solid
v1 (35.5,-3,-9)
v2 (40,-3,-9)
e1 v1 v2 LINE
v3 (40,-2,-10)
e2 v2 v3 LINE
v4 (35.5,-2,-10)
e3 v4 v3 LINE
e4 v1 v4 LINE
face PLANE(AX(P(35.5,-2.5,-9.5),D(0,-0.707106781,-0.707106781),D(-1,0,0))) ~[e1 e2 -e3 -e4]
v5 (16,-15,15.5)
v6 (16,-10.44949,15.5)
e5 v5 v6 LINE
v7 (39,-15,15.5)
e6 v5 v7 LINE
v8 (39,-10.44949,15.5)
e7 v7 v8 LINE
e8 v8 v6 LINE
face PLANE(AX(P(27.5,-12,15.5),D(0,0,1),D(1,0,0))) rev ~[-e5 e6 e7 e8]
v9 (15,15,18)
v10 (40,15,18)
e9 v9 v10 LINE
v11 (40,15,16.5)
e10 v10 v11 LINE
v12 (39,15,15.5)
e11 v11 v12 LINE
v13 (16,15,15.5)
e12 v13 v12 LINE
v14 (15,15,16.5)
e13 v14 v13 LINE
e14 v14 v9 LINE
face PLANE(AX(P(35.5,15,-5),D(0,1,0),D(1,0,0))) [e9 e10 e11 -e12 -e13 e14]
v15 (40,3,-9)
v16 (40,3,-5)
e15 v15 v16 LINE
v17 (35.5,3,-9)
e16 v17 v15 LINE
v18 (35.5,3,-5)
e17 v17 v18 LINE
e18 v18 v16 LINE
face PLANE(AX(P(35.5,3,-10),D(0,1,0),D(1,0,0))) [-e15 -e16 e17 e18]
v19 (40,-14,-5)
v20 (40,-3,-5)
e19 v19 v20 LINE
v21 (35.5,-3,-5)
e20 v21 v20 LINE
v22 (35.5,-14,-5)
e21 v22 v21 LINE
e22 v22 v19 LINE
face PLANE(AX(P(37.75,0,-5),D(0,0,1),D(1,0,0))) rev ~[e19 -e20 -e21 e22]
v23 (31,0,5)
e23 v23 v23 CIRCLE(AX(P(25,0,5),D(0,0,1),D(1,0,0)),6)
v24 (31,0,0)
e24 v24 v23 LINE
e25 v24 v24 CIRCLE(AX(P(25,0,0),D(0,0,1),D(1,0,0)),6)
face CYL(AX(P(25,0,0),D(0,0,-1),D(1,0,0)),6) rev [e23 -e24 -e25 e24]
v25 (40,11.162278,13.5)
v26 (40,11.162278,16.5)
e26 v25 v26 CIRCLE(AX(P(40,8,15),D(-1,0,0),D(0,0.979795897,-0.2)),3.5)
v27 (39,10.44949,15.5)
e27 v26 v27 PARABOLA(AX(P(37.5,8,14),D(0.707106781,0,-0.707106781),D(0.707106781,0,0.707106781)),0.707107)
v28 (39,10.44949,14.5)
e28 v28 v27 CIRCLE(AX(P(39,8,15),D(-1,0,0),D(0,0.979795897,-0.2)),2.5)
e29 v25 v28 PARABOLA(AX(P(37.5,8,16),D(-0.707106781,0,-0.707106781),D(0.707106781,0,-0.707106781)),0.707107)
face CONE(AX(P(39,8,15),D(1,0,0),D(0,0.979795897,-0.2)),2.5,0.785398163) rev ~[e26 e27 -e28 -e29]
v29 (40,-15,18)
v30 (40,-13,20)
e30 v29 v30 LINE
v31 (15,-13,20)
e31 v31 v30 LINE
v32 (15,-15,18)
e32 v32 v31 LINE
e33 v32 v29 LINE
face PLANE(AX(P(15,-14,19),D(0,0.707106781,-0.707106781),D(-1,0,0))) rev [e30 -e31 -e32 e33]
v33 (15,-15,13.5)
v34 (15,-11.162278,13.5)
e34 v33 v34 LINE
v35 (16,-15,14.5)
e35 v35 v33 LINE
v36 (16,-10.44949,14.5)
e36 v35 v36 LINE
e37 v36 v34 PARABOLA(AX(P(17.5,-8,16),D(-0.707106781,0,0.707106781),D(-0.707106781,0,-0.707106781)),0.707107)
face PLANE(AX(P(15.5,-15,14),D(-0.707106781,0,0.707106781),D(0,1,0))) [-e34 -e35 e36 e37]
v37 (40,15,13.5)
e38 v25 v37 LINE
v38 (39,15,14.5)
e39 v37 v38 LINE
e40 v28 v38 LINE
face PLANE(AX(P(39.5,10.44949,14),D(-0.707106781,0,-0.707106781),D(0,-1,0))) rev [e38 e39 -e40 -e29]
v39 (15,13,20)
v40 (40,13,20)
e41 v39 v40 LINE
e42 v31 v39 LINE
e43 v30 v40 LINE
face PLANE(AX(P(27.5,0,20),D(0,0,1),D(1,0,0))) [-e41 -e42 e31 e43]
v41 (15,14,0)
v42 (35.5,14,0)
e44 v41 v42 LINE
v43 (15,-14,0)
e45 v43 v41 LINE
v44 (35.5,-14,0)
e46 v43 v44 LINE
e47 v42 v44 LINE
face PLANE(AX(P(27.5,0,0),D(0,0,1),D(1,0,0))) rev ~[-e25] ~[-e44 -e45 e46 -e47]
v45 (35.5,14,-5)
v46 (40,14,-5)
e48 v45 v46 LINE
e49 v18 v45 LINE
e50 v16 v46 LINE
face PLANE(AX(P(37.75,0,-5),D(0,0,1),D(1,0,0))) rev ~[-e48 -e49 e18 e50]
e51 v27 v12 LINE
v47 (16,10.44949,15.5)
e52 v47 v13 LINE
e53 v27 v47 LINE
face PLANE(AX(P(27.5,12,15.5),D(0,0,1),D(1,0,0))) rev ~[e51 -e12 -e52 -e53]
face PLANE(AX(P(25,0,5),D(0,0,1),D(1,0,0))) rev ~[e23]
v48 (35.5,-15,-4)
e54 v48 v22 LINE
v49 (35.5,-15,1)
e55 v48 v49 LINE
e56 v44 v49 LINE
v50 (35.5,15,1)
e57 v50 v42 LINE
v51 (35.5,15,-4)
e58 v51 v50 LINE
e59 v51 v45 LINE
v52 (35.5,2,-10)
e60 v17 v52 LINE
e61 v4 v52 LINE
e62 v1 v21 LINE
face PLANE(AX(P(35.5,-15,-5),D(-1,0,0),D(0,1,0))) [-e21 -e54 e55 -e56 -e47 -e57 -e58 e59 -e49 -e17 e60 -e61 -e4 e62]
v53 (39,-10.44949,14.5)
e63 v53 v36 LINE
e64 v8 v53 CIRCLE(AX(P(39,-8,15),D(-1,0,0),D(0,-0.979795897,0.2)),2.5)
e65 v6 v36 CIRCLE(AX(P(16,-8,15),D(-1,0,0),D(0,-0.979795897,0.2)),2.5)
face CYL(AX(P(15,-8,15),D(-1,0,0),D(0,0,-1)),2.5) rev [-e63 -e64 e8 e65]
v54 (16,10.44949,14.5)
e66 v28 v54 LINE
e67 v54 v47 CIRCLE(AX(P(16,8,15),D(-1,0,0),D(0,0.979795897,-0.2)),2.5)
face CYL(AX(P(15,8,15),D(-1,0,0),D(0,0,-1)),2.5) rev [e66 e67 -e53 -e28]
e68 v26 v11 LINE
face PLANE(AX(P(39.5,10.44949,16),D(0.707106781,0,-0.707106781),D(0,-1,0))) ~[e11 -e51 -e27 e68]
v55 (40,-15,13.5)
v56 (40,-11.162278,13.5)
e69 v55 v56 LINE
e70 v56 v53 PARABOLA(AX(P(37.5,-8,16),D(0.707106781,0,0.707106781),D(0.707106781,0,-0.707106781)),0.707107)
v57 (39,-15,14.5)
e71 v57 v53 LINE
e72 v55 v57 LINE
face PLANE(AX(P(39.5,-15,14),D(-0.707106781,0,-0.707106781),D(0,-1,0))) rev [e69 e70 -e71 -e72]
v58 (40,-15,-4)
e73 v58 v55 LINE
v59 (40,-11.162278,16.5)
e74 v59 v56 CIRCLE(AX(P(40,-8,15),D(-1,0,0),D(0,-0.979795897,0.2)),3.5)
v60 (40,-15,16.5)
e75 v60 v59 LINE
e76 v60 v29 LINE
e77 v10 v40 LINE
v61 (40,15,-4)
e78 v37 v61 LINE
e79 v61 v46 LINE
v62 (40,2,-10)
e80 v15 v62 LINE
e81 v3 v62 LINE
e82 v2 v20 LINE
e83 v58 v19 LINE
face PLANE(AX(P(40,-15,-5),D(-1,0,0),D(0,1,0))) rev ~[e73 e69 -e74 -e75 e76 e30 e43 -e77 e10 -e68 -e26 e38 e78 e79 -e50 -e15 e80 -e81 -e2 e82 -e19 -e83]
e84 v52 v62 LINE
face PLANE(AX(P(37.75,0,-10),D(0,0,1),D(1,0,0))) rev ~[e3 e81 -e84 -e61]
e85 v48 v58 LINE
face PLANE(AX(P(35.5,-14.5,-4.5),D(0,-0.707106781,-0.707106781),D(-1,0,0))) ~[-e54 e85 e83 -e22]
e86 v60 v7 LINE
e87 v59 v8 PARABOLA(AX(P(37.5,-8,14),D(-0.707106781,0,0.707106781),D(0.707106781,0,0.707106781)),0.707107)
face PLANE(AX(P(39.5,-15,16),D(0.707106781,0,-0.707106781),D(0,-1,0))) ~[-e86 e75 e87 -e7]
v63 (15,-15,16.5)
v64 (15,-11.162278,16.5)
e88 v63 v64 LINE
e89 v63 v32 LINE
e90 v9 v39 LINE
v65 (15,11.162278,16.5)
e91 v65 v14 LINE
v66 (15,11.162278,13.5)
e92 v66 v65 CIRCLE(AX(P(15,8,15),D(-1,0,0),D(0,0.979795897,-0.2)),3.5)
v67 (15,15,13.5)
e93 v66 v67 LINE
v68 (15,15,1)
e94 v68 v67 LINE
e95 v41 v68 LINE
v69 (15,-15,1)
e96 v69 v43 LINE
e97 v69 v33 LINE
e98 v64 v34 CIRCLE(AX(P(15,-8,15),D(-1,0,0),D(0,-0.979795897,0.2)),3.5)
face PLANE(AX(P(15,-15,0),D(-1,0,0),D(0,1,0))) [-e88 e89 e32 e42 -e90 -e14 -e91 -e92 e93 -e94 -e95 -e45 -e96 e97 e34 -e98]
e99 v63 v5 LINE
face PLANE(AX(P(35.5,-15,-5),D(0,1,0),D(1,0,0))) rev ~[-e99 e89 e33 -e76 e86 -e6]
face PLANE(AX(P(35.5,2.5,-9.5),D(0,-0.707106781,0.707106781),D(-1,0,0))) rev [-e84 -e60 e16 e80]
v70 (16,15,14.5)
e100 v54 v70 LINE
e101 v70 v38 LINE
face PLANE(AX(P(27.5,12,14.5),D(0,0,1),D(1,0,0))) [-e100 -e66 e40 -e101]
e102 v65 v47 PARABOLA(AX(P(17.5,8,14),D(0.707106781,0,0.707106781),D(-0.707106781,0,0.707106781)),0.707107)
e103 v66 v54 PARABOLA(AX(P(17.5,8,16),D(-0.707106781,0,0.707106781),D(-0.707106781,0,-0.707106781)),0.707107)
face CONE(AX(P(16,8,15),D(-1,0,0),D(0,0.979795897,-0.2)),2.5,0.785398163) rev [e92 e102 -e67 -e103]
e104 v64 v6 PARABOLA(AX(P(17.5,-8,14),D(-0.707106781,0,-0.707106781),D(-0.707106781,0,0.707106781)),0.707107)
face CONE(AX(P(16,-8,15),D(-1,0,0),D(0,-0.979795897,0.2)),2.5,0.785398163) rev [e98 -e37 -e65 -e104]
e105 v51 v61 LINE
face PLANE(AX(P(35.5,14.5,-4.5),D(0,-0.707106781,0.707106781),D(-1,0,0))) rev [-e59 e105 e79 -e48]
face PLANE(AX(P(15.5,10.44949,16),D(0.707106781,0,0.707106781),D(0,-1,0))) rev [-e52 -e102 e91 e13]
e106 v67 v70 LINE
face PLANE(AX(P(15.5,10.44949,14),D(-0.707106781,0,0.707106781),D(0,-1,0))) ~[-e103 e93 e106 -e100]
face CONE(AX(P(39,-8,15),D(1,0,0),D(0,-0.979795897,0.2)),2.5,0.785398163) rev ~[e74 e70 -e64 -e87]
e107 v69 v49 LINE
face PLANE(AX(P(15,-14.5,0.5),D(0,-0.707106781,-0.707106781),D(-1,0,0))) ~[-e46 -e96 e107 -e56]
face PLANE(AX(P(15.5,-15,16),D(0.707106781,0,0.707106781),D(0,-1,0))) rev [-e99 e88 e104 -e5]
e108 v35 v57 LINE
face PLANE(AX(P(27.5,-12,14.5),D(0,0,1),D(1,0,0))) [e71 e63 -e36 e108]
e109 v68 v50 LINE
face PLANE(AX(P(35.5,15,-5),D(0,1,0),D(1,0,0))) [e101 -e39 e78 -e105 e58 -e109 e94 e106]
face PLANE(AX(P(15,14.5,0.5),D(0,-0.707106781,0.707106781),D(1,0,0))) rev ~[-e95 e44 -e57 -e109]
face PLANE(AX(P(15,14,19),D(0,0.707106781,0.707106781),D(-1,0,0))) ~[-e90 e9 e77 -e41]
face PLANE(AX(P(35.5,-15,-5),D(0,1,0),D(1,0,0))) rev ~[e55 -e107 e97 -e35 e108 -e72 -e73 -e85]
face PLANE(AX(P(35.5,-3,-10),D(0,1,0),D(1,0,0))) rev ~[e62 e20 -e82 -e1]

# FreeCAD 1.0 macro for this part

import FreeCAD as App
import Part
import Sketcher
from FreeCAD import Vector
Q = App.Units.Quantity


def edges_at(feature, points):
    """Names of the edges that pass closest to the given points."""
    edges = feature.Shape.Edges
    near = lambda p: min(range(len(edges)), key=lambda i: edges[i].distToShape(Part.Vertex(*p))[0])
    return sorted({f"Edge{near(p) + 1}" for p in points})


def add_polygon(sketch, points):
    """Adds a closed chain of lines whose ends are joined by coincident constraints."""
    first, n = sketch.GeometryCount, len(points)
    for a, b in zip(points, points[1:] + points[:1]):
        sketch.addGeometry(Part.LineSegment(App.Vector(*a, 0), App.Vector(*b, 0)), False)
    for i in range(n):
        sketch.addConstraint(Sketcher.Constraint("Coincident", first + i, 2, first + (i + 1) % n, 1))

doc = App.newDocument("Part")
params = doc.addObject("Spreadsheet::Sheet", "Params")
for row, (alias, value) in enumerate([
    ("sketch1_diameter", "12 mm"),
    ("pad1_length", "5 mm"),
    ("sketch2_width", "25 mm"),
    ("sketch2_height", "6 mm"),
    ("pad2_length", "1 mm"),
    ("sketch3_diameter", "5 mm"),
    ("pad3_length", "25 mm"),
    ("sketch4_width", "25 mm"),
    ("sketch4_height", "6 mm"),
    ("pad4_length", "1 mm"),
    ("sketch5_diameter", "5 mm"),
    ("pad5_length", "25 mm"),
    ("sketch6_height", "30 mm"),
    ("sketch6_width", "4.5 mm"),
    ("pad6_length", "6 mm"),
    ("chamfer_size", "1 mm"),
    ("sketch7_height", "6 mm"),
    ("sketch7_width", "4.5 mm"),
    ("pad7_length", "5 mm"),
    ("chamfer2_size", "1 mm"),
    ("sketch8_width", "25 mm"),
    ("sketch8_height", "30 mm"),
    ("pad8_length", "20 mm"),
    ("chamfer3_size", "2 mm"),
    ("chamfer4_size", "1 mm"),
    ("chamfer5_size", "1 mm"),
], start=1):
    params.set(f"A{row}", alias)
    params.set(f"B{row}", "=" + value)
    params.setAlias(f"B{row}", alias)

body = doc.addObject("PartDesign::Body", "Body")

sketch1 = doc.addObject("Sketcher::SketchObject", "Sketch")
body.addObject(sketch1)
sketch1.AttachmentSupport = (doc.XY_Plane, [""])
sketch1.MapMode = "FlatFace"
sketch1.addGeometry(Part.Circle(Vector(25, 0, 0), Vector(0, 0, 1), 6), False)
sketch1.addConstraint([
    Sketcher.Constraint("PointOnObject", 0, 3, -1),
    Sketcher.Constraint("Diameter", 0, Q("12 mm")),
    Sketcher.Constraint("DistanceX", -1, 1, 0, 3, Q("25 mm")),
])
sketch1.setExpression("Constraints[1]", "Params.sketch1_diameter")
pad1 = doc.addObject("PartDesign::Pad", "Pad")
body.addObject(pad1)
pad1.Profile = sketch1
pad1.setExpression("Length", "Params.pad1_length")
body2 = doc.addObject("PartDesign::Body", "Body001")

sketch2 = doc.addObject("Sketcher::SketchObject", "Sketch001")
body2.addObject(sketch2)
sketch2.AttachmentSupport = (doc.getObject("XY_Plane001"), [""])
sketch2.MapMode = "FlatFace"
sketch2.AttachmentOffset = App.Placement(Vector(0, 0, 14.5), App.Rotation())
add_polygon(sketch2, [(15, -9), (15, -15), (40, -15), (40, -9)])
sketch2.addConstraint([
    Sketcher.Constraint("Vertical", 0),
    Sketcher.Constraint("Horizontal", 1),
    Sketcher.Constraint("Vertical", 2),
    Sketcher.Constraint("Horizontal", 3),
    Sketcher.Constraint("DistanceX", 1, 1, 1, 2, Q("25 mm")),
    Sketcher.Constraint("DistanceY", 0, 2, 0, 1, Q("6 mm")),
    Sketcher.Constraint("DistanceX", -1, 1, 0, 2, Q("15 mm")),
    Sketcher.Constraint("DistanceY", 0, 2, -1, 1, Q("15 mm")),
])
sketch2.setExpression("Constraints[8]", "Params.sketch2_width")
sketch2.setExpression("Constraints[9]", "Params.sketch2_height")
pad2 = doc.addObject("PartDesign::Pad", "Pad001")
body2.addObject(pad2)
pad2.Profile = sketch2
pad2.setExpression("Length", "Params.pad2_length")
body3 = doc.addObject("PartDesign::Body", "Body002")

sketch3 = doc.addObject("Sketcher::SketchObject", "Sketch002")
body3.addObject(sketch3)
sketch3.AttachmentSupport = (doc.getObject("YZ_Plane002"), [""])
sketch3.MapMode = "FlatFace"
sketch3.AttachmentOffset = App.Placement(Vector(0, 0, 15), App.Rotation())
sketch3.addGeometry(Part.Circle(Vector(8, 15, 0), Vector(0, 0, 1), 2.5), False)
sketch3.addConstraint([
    Sketcher.Constraint("Diameter", 0, Q("5 mm")),
    Sketcher.Constraint("DistanceX", -1, 1, 0, 3, Q("8 mm")),
    Sketcher.Constraint("DistanceY", -1, 1, 0, 3, Q("15 mm")),
])
sketch3.setExpression("Constraints[0]", "Params.sketch3_diameter")
pad3 = doc.addObject("PartDesign::Pad", "Pad002")
body3.addObject(pad3)
pad3.Profile = sketch3
pad3.setExpression("Length", "Params.pad3_length")
body4 = doc.addObject("PartDesign::Body", "Body003")

sketch4 = doc.addObject("Sketcher::SketchObject", "Sketch003")
body4.addObject(sketch4)
sketch4.AttachmentSupport = (doc.getObject("XY_Plane003"), [""])
sketch4.MapMode = "FlatFace"
sketch4.AttachmentOffset = App.Placement(Vector(0, 0, 14.5), App.Rotation())
add_polygon(sketch4, [(15, 15), (15, 9), (40, 9), (40, 15)])
sketch4.addConstraint([
    Sketcher.Constraint("Vertical", 0),
    Sketcher.Constraint("Horizontal", 1),
    Sketcher.Constraint("Vertical", 2),
    Sketcher.Constraint("Horizontal", 3),
    Sketcher.Constraint("DistanceX", 1, 1, 1, 2, Q("25 mm")),
    Sketcher.Constraint("DistanceY", 0, 2, 0, 1, Q("6 mm")),
    Sketcher.Constraint("DistanceX", -1, 1, 0, 2, Q("15 mm")),
    Sketcher.Constraint("DistanceY", -1, 1, 0, 2, Q("9 mm")),
])
sketch4.setExpression("Constraints[8]", "Params.sketch4_width")
sketch4.setExpression("Constraints[9]", "Params.sketch4_height")
pad4 = doc.addObject("PartDesign::Pad", "Pad003")
body4.addObject(pad4)
pad4.Profile = sketch4
pad4.setExpression("Length", "Params.pad4_length")
body5 = doc.addObject("PartDesign::Body", "Body004")
body5.AllowCompound = True

sketch5 = doc.addObject("Sketcher::SketchObject", "Sketch004")
body5.addObject(sketch5)
sketch5.AttachmentSupport = (doc.getObject("YZ_Plane004"), [""])
sketch5.MapMode = "FlatFace"
sketch5.AttachmentOffset = App.Placement(Vector(0, 0, 15), App.Rotation())
sketch5.addGeometry(Part.Circle(Vector(-8, 15, 0), Vector(0, 0, 1), 2.5), False)
sketch5.addConstraint([
    Sketcher.Constraint("Diameter", 0, Q("5 mm")),
    Sketcher.Constraint("DistanceX", 0, 3, -1, 1, Q("8 mm")),
    Sketcher.Constraint("DistanceY", -1, 1, 0, 3, Q("15 mm")),
])
sketch5.setExpression("Constraints[0]", "Params.sketch5_diameter")
pad5 = doc.addObject("PartDesign::Pad", "Pad004")
body5.addObject(pad5)
pad5.Profile = sketch5
pad5.setExpression("Length", "Params.pad5_length")
doc.recompute()

boolean = doc.addObject("PartDesign::Boolean", "Boolean")
body5.addObject(boolean)
boolean.Type = "Fuse"
boolean.addObjects([body2])
doc.recompute()

boolean2 = doc.addObject("PartDesign::Boolean", "Boolean001")
body5.addObject(boolean2)
boolean2.Type = "Fuse"
boolean2.addObjects([body3])
doc.recompute()

boolean3 = doc.addObject("PartDesign::Boolean", "Boolean002")
body5.addObject(boolean3)
boolean3.Type = "Fuse"
boolean3.addObjects([body4])
body6 = doc.addObject("PartDesign::Body", "Body005")

sketch6 = doc.addObject("Sketcher::SketchObject", "Sketch005")
body6.addObject(sketch6)
sketch6.AttachmentSupport = (doc.getObject("XY_Plane005"), [""])
sketch6.MapMode = "FlatFace"
sketch6.AttachmentOffset = App.Placement(Vector(0, 0, -5), App.Rotation())
add_polygon(sketch6, [(35.5, 15), (35.5, -15), (40, -15), (40, 15)])
sketch6.addConstraint([
    Sketcher.Constraint("Vertical", 0),
    Sketcher.Constraint("Horizontal", 1),
    Sketcher.Constraint("Vertical", 2),
    Sketcher.Constraint("Horizontal", 3),
    Sketcher.Constraint("DistanceY", 0, 2, 0, 1, Q("30 mm")),
    Sketcher.Constraint("DistanceX", 1, 1, 1, 2, Q("4.5 mm")),
    Sketcher.Constraint("DistanceY", 0, 2, -1, 1, Q("15 mm")),
    Sketcher.Constraint("DistanceX", -1, 1, 1, 2, Q("40 mm")),
])
sketch6.setExpression("Constraints[8]", "Params.sketch6_height")
sketch6.setExpression("Constraints[9]", "Params.sketch6_width")
pad6 = doc.addObject("PartDesign::Pad", "Pad005")
body6.addObject(pad6)
pad6.Profile = sketch6
pad6.setExpression("Length", "Params.pad6_length")
doc.recompute()

chamfer = doc.addObject("PartDesign::Chamfer", "Chamfer")
body6.addObject(chamfer)
chamfer.Base = (pad6, edges_at(pad6, [(37.75, -15, -5), (37.75, 15, -5)]))
chamfer.setExpression("Size", "Params.chamfer_size")
body7 = doc.addObject("PartDesign::Body", "Body006")

sketch7 = doc.addObject("Sketcher::SketchObject", "Sketch006")
body7.addObject(sketch7)
sketch7.AttachmentSupport = (doc.getObject("XY_Plane006"), [""])
sketch7.MapMode = "FlatFace"
sketch7.AttachmentOffset = App.Placement(Vector(0, 0, -10), App.Rotation())
add_polygon(sketch7, [(35.5, 3), (35.5, -3), (40, -3), (40, 3)])
sketch7.addConstraint([
    Sketcher.Constraint("Vertical", 0),
    Sketcher.Constraint("Horizontal", 1),
    Sketcher.Constraint("Vertical", 2),
    Sketcher.Constraint("Horizontal", 3),
    Sketcher.Constraint("DistanceY", 0, 2, 0, 1, Q("6 mm")),
    Sketcher.Constraint("DistanceX", 1, 1, 1, 2, Q("4.5 mm")),
    Sketcher.Constraint("DistanceY", 0, 2, -1, 1, Q("3 mm")),
    Sketcher.Constraint("DistanceX", -1, 1, 1, 2, Q("40 mm")),
])
sketch7.setExpression("Constraints[8]", "Params.sketch7_height")
sketch7.setExpression("Constraints[9]", "Params.sketch7_width")
pad7 = doc.addObject("PartDesign::Pad", "Pad006")
body7.addObject(pad7)
pad7.Profile = sketch7
pad7.setExpression("Length", "Params.pad7_length")
doc.recompute()

chamfer2 = doc.addObject("PartDesign::Chamfer", "Chamfer001")
body7.addObject(chamfer2)
chamfer2.Base = (pad7, edges_at(pad7, [(37.75, -3, -10), (37.75, 3, -10)]))
chamfer2.setExpression("Size", "Params.chamfer2_size")
body8 = doc.addObject("PartDesign::Body", "Body007")

sketch8 = doc.addObject("Sketcher::SketchObject", "Sketch007")
body8.addObject(sketch8)
sketch8.AttachmentSupport = (doc.getObject("XY_Plane007"), [""])
sketch8.MapMode = "FlatFace"
add_polygon(sketch8, [(15, 15), (15, -15), (40, -15), (40, 15)])
sketch8.addConstraint([
    Sketcher.Constraint("Vertical", 0),
    Sketcher.Constraint("Horizontal", 1),
    Sketcher.Constraint("Vertical", 2),
    Sketcher.Constraint("Horizontal", 3),
    Sketcher.Constraint("DistanceX", 1, 1, 1, 2, Q("25 mm")),
    Sketcher.Constraint("DistanceY", 0, 2, 0, 1, Q("30 mm")),
    Sketcher.Constraint("DistanceX", -1, 1, 0, 2, Q("15 mm")),
    Sketcher.Constraint("DistanceY", 0, 2, -1, 1, Q("15 mm")),
])
sketch8.setExpression("Constraints[8]", "Params.sketch8_width")
sketch8.setExpression("Constraints[9]", "Params.sketch8_height")
pad8 = doc.addObject("PartDesign::Pad", "Pad007")
body8.addObject(pad8)
pad8.Profile = sketch8
pad8.setExpression("Length", "Params.pad8_length")
doc.recompute()

chamfer3 = doc.addObject("PartDesign::Chamfer", "Chamfer002")
body8.addObject(chamfer3)
chamfer3.Base = (pad8, edges_at(pad8, [(27.5, -15, 20), (27.5, 15, 20)]))
chamfer3.setExpression("Size", "Params.chamfer3_size")
doc.recompute()

chamfer4 = doc.addObject("PartDesign::Chamfer", "Chamfer003")
body8.addObject(chamfer4)
chamfer4.Base = (chamfer3, edges_at(chamfer3, [(27.5, -15, 0), (27.5, 15, 0)]))
chamfer4.setExpression("Size", "Params.chamfer4_size")
doc.recompute()

boolean4 = doc.addObject("PartDesign::Boolean", "Boolean003")
body8.addObject(boolean4)
boolean4.Type = "Fuse"
boolean4.addObjects([body6])
doc.recompute()

boolean5 = doc.addObject("PartDesign::Boolean", "Boolean004")
body8.addObject(boolean5)
boolean5.Type = "Fuse"
boolean5.addObjects([body7])
doc.recompute()

boolean6 = doc.addObject("PartDesign::Boolean", "Boolean005")
body8.addObject(boolean6)
boolean6.Type = "Cut"
boolean6.addObjects([body5])
doc.recompute()

boolean7 = doc.addObject("PartDesign::Boolean", "Boolean006")
body8.addObject(boolean7)
boolean7.Type = "Cut"
boolean7.addObjects([body])
doc.recompute()

chamfer5 = doc.addObject("PartDesign::Chamfer", "Chamfer004")
body8.addObject(chamfer5)
chamfer5.Base = (boolean7, edges_at(boolean7, [
    (15, -12.725, 14.5),
    (15, -5.5, 15),
    (15, -5.5, 15),
    (15, -12.725, 15.5),
    (15, 12.725, 15.5),
    (15, 5.5, 15),
    (15, 5.5, 15),
    (15, 12.725, 14.5),
    (40, -12.725, 14.5),
    (40, -5.5, 15),
    (40, -5.5, 15),
    (40, -12.725, 15.5),
    (40, 12.725, 15.5),
    (40, 5.5, 15),
    (40, 5.5, 15),
    (40, 12.725, 14.5),
]))
chamfer5.setExpression("Size", "Params.chamfer5_size")

doc.recompute()
